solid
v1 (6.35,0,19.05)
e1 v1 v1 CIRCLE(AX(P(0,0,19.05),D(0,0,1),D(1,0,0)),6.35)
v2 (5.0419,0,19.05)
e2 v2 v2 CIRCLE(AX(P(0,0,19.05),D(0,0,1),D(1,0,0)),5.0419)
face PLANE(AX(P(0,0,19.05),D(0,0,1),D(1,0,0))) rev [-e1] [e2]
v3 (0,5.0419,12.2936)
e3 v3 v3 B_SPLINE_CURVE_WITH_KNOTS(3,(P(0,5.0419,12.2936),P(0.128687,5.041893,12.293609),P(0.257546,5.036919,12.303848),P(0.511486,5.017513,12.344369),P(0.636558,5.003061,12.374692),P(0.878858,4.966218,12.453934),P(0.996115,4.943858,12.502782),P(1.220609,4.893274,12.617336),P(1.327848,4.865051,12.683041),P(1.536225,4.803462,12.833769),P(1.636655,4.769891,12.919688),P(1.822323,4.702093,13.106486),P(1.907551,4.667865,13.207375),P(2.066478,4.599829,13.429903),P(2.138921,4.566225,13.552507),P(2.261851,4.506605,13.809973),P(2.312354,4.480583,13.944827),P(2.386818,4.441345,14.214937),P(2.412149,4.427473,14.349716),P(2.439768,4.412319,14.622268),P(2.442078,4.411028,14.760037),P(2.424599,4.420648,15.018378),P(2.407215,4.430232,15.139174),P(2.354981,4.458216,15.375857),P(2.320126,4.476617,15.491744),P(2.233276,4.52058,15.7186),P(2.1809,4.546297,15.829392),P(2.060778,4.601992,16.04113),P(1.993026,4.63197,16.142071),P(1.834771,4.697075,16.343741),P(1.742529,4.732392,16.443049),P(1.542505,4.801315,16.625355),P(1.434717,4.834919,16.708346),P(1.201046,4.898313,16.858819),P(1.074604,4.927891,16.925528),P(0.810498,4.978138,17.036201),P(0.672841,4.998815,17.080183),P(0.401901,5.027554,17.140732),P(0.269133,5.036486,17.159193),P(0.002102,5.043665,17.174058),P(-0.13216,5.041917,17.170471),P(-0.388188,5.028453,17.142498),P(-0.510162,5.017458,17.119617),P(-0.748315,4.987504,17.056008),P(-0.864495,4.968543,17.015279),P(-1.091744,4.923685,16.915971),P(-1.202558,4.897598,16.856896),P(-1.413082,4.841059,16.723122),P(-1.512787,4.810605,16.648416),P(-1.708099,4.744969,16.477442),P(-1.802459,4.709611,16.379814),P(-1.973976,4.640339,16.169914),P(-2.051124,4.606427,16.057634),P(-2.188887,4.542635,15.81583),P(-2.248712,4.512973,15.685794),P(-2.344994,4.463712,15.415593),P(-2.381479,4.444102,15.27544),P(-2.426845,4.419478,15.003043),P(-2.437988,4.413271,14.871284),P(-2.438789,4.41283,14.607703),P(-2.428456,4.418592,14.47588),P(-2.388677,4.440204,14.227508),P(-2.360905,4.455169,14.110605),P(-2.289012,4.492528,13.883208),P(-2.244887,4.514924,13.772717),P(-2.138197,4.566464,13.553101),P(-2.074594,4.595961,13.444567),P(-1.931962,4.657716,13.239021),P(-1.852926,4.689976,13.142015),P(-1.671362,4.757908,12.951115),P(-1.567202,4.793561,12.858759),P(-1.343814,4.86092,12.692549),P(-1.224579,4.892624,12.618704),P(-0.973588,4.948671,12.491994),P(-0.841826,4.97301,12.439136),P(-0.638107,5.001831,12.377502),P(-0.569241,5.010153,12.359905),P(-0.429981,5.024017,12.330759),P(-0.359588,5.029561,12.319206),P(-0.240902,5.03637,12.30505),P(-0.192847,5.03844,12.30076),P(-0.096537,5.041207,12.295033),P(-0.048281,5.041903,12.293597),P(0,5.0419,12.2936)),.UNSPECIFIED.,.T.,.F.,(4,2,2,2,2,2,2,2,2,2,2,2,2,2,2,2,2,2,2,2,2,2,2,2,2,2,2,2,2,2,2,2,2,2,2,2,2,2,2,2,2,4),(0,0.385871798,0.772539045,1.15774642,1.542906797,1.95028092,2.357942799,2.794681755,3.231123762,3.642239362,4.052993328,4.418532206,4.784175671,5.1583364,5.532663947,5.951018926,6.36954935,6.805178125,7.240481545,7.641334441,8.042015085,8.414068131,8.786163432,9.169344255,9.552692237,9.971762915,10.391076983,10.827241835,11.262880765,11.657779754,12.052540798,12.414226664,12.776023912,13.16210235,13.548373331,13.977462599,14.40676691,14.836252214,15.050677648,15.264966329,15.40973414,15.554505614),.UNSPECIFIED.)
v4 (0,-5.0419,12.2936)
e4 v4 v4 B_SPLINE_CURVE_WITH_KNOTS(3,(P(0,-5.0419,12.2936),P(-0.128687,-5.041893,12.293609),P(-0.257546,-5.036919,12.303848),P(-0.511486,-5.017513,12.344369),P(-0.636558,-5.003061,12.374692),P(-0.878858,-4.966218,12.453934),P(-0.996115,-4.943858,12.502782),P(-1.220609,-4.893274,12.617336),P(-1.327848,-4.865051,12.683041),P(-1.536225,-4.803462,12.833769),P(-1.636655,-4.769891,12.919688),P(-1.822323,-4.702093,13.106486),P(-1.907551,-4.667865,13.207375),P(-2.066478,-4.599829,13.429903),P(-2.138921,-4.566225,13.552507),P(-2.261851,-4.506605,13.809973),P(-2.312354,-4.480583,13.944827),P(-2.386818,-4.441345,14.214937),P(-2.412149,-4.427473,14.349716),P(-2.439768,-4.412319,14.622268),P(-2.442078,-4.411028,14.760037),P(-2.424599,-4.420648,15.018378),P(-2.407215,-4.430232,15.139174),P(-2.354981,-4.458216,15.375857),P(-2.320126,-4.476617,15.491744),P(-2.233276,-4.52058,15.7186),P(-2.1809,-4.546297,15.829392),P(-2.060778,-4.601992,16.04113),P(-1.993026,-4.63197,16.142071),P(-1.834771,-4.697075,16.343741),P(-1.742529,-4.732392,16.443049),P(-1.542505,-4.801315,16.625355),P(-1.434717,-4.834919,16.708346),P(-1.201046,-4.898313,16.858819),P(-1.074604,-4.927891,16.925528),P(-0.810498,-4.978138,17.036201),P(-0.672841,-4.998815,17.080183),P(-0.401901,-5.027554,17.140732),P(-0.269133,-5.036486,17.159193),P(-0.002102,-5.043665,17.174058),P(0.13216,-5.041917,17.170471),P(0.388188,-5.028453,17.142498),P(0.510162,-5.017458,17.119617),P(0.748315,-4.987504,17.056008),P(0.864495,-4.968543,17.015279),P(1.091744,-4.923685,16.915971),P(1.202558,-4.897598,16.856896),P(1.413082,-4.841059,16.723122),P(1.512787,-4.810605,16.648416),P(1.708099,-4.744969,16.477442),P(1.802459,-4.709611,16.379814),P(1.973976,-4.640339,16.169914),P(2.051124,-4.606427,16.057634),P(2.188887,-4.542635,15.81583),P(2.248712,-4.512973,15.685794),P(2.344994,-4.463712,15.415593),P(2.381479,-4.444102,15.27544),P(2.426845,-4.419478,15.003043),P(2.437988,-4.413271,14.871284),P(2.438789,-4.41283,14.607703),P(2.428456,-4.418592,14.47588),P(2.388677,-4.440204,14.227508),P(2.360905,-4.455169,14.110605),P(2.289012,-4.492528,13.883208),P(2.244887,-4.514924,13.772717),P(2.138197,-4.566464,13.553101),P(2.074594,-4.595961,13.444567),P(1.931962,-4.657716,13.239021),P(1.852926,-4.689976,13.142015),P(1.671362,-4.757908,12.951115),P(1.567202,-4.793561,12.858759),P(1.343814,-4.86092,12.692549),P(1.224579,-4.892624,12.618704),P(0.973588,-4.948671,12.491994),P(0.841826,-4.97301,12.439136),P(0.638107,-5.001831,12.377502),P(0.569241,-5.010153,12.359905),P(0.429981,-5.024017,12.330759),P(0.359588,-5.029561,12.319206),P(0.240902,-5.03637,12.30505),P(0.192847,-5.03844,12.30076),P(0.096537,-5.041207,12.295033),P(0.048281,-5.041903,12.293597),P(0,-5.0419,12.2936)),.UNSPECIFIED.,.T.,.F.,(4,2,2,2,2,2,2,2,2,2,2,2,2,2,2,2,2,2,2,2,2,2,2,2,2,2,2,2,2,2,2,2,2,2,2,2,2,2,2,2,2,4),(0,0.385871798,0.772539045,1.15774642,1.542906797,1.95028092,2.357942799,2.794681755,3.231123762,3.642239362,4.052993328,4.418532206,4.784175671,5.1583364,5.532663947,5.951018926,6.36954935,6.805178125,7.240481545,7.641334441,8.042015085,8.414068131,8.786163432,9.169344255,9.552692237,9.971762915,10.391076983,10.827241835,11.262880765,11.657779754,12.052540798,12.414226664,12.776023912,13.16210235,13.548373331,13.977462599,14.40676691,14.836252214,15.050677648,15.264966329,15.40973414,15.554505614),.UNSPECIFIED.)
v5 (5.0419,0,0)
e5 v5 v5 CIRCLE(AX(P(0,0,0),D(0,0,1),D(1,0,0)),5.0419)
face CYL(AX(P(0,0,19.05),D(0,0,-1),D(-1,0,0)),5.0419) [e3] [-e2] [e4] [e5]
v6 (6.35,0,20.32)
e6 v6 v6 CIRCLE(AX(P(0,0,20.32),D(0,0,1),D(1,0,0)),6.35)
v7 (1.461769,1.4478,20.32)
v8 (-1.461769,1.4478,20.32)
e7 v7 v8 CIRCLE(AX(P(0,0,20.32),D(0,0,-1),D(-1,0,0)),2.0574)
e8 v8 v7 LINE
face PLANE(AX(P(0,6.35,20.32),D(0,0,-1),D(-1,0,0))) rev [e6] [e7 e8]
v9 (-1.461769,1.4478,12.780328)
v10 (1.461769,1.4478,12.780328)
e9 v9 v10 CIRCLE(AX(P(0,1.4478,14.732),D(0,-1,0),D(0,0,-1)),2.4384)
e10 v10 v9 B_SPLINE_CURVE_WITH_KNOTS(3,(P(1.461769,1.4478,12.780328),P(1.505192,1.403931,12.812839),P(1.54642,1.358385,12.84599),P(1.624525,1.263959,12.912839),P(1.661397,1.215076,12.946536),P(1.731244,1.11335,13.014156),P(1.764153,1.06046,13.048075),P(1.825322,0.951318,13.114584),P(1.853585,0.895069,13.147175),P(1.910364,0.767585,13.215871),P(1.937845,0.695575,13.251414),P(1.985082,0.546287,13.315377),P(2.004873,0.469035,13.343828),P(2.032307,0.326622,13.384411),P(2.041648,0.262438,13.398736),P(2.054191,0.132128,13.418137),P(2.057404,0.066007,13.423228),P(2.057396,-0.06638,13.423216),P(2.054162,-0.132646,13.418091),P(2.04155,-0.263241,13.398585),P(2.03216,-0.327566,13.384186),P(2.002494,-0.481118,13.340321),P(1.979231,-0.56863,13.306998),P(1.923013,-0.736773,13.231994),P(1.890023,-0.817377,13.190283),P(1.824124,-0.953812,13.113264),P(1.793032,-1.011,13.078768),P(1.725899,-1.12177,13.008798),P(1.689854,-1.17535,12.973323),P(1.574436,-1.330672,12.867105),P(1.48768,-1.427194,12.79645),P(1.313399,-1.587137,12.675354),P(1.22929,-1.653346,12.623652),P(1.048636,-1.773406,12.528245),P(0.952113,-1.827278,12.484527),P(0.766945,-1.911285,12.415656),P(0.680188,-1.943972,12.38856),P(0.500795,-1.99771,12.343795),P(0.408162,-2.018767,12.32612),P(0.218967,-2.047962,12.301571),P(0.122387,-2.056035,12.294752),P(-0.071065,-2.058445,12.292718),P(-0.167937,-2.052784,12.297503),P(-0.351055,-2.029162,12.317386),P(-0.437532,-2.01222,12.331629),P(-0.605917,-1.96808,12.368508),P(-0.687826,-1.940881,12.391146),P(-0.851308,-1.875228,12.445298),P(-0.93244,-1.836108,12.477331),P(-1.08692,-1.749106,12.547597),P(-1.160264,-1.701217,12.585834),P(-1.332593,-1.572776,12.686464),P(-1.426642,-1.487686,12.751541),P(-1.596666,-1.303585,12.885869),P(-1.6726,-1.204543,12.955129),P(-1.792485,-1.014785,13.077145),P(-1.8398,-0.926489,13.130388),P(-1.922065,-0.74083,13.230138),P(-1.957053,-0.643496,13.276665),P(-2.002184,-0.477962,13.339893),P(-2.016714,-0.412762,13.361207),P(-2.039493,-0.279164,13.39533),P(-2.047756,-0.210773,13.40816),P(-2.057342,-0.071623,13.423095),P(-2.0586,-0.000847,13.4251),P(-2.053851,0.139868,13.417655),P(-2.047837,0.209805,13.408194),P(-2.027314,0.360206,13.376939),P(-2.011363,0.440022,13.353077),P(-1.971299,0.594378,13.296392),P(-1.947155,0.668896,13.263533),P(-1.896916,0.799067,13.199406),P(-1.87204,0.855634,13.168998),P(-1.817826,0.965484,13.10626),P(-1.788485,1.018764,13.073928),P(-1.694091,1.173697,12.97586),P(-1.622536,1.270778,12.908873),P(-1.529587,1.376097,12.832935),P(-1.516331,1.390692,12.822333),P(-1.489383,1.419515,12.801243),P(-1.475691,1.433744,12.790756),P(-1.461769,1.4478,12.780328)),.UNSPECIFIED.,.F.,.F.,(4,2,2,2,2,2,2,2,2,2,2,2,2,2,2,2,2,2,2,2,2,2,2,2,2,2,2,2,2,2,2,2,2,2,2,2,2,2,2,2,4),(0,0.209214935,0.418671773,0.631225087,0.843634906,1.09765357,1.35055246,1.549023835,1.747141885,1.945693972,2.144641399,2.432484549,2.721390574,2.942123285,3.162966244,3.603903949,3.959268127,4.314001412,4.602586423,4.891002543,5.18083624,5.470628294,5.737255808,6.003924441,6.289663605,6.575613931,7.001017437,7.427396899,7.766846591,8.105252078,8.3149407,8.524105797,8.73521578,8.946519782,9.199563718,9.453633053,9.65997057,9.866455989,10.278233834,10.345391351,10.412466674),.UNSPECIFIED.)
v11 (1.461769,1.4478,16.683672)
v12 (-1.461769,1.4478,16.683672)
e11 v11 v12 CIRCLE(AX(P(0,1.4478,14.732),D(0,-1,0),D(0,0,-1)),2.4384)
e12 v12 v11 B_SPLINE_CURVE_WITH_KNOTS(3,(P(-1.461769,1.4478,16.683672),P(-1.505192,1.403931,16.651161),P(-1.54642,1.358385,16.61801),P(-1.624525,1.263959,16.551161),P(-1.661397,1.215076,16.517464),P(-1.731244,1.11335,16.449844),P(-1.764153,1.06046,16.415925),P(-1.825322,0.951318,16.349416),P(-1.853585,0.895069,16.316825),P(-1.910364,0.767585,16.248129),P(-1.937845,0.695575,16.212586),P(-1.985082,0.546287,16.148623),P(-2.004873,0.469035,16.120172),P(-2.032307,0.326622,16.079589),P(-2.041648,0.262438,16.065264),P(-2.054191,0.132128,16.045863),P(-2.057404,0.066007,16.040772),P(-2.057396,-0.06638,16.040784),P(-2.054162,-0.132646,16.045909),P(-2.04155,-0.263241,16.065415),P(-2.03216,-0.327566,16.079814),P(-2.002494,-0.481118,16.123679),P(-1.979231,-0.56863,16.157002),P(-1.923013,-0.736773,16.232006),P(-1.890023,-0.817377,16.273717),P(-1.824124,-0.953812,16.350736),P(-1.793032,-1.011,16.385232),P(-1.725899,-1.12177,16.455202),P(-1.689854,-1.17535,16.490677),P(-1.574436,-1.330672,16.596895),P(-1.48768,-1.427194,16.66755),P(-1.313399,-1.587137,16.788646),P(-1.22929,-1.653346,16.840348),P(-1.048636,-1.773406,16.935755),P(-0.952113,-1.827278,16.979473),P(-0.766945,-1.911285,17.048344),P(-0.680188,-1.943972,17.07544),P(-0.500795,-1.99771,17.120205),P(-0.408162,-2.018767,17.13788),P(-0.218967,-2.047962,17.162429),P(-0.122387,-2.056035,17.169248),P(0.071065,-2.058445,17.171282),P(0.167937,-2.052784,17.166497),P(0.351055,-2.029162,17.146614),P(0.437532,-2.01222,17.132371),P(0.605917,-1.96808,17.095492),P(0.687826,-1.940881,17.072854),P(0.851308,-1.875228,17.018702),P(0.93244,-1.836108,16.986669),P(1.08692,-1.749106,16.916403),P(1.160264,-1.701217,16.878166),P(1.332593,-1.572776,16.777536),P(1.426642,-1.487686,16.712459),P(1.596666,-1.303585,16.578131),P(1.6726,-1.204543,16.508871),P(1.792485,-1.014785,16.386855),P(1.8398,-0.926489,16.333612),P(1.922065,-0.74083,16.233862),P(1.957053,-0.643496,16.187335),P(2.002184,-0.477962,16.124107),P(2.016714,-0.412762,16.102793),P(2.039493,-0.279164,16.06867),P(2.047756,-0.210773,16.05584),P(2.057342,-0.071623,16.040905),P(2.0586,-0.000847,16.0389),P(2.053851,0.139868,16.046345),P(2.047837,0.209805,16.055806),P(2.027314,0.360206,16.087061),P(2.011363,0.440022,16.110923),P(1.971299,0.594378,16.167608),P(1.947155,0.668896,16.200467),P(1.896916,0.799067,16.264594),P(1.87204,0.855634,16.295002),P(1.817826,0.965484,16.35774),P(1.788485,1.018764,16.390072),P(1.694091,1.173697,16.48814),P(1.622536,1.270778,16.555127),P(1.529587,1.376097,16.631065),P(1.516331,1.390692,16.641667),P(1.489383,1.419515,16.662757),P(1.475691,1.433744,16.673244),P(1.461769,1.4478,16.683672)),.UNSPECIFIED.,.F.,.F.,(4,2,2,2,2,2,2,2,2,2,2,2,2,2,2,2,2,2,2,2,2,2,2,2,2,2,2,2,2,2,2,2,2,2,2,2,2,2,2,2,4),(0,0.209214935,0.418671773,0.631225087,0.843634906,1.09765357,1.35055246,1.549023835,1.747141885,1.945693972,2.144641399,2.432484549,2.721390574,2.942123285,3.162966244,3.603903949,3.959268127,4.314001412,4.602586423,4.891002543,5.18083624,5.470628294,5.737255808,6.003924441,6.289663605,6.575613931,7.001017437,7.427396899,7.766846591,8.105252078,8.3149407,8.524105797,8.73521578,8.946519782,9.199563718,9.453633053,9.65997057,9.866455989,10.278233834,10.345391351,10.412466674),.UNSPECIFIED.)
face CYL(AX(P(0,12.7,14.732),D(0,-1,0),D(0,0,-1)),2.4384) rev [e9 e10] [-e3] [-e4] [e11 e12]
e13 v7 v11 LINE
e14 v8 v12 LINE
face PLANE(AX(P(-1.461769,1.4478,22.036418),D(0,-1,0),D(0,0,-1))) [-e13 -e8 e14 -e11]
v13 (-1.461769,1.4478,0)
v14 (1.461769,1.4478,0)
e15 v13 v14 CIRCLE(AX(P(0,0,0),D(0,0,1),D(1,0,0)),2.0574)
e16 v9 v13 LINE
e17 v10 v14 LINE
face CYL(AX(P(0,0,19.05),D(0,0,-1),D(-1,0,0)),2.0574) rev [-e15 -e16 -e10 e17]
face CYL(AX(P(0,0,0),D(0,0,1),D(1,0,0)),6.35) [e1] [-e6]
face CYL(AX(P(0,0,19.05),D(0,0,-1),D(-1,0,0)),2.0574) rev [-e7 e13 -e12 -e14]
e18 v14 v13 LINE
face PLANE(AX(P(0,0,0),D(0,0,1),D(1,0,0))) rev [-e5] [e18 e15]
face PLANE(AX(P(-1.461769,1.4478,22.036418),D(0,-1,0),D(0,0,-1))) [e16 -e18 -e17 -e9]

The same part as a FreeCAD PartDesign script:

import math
import FreeCAD as App
import Part
import Sketcher

V = App.Vector
Q = App.Units.Quantity

doc = App.newDocument("Part")
body = doc.addObject("PartDesign::Body", "Body")

# Sketch on XY plane
sketch1 = body.newObject("Sketcher::SketchObject", "Sketch")
sketch1.AttachmentSupport = (doc.getObject("XY_Plane"), [""])
sketch1.MapMode = "FlatFace"
sketch1.addGeometry([
    Part.Circle(V(0, 0, 0), V(0, 0, 1), 5),
    Part.Circle(V(0, 0, 0), V(0, 0, 1), 2.1),
], False)
sketch1.addConstraint([
    Sketcher.Constraint("Coincident", 0, 3, -1, 1),
    Sketcher.Constraint("Coincident", 1, 3, -1, 1),
    Sketcher.Constraint("Diameter", 0, Q("0.397 in")),
    Sketcher.Constraint("Diameter", 1, Q("0.162 in")),
])
pad1 = body.newObject("PartDesign::Pad", "Pad")
pad1.Profile = sketch1
pad1.Length = Q("0.75 in")

# Sketch on XY plane
sketch2 = body.newObject("Sketcher::SketchObject", "Sketch001")
sketch2.AttachmentSupport = (doc.getObject("XY_Plane"), [""])
sketch2.MapMode = "FlatFace"
sketch2.addGeometry([
    Part.LineSegment(V(1.5, 1.4, 0), V(-1.5, 1.4, 0)),
    Part.ArcOfCircle(Part.Circle(V(0, 0, 0), V(0, 0, 1), 2.1), math.radians(45), math.radians(135)),
], False)
sketch2.addConstraint([
    Sketcher.Constraint("Coincident", 0, 1, 1, 1),
    Sketcher.Constraint("Coincident", 1, 2, 0, 2),
    Sketcher.Constraint("Horizontal", 0),
    Sketcher.Constraint("Coincident", 1, 3, -1, 1),
    Sketcher.Constraint("Radius", 1, Q("0.081 in")),
    Sketcher.Constraint("DistanceX", 0, 2, 0, 1, Q("0.1151 in")),
])
pad2 = body.newObject("PartDesign::Pad", "Pad001")
pad2.Profile = sketch2
pad2.Length = Q("0.75 in")

# Sketch on XZ plane
sketch3 = body.newObject("Sketcher::SketchObject", "Sketch002")
sketch3.AttachmentSupport = (doc.getObject("XZ_Plane"), [""])
sketch3.MapMode = "FlatFace"
sketch3.addGeometry(Part.Circle(V(0, 14.7, 0), V(0, 0, 1), 2.4), False)
sketch3.addConstraint([
    Sketcher.Constraint("PointOnObject", 0, 3, -2),
    Sketcher.Constraint("Diameter", 0, Q("0.192 in")),
    Sketcher.Constraint("DistanceY", -1, 1, 0, 3, Q("0.58 in")),
])
pocket1 = body.newObject("PartDesign::Pocket", "Pocket")
pocket1.Profile = sketch3
pocket1.Length = Q("1 in")
pocket1.Midplane = True

# Sketch on YZ plane
sketch4 = body.newObject("Sketcher::SketchObject", "Sketch003")
sketch4.AttachmentSupport = (doc.getObject("YZ_Plane"), [""])
sketch4.MapMode = "FlatFace"
sketch4.addGeometry([
    Part.LineSegment(V(6.3, 20.3, 0), V(0, 20.3, 0)),
    Part.LineSegment(V(0, 20.3, 0), V(0, 19.1, 0)),
    Part.LineSegment(V(0, 19.1, 0), V(6.3, 19.1, 0)),
    Part.LineSegment(V(6.3, 19.1, 0), V(6.3, 20.3, 0)),
], False)
sketch4.addConstraint([
    Sketcher.Constraint("Coincident", 0, 2, 1, 1),
    Sketcher.Constraint("Coincident", 1, 2, 2, 1),
    Sketcher.Constraint("Coincident", 2, 2, 3, 1),
    Sketcher.Constraint("Coincident", 3, 2, 0, 1),
    Sketcher.Constraint("Horizontal", 0),
    Sketcher.Constraint("Vertical", 1),
    Sketcher.Constraint("Horizontal", 2),
    Sketcher.Constraint("Vertical", 3),
    Sketcher.Constraint("PointOnObject", 0, 2, -2),
    Sketcher.Constraint("DistanceX", 0, 2, 0, 1, Q("0.25 in")),
    Sketcher.Constraint("DistanceY", 1, 2, 1, 1, Q("0.05 in")),
    Sketcher.Constraint("DistanceY", -1, 1, 0, 2, Q("0.8 in")),
])
revolution = body.newObject("PartDesign::Revolution", "Revolution")
revolution.Profile = sketch4
revolution.ReferenceAxis = (sketch4, ["V_Axis"])
revolution.Angle = 360

# Sketch on XY plane
sketch5 = body.newObject("Sketcher::SketchObject", "Sketch004")
sketch5.AttachmentSupport = (doc.getObject("XY_Plane"), [""])
sketch5.MapMode = "FlatFace"
sketch5.AttachmentOffset = App.Placement(V(0, 0, 0.75 * 25.4), App.Rotation())
sketch5.addGeometry([
    Part.LineSegment(V(-1.5, 1.4, 0), V(1.5, 1.4, 0)),
    Part.ArcOfCircle(Part.Circle(V(0, 0, 0), V(0, 0, 1), 2.1), math.radians(135), math.radians(405)),
], False)
sketch5.addConstraint([
    Sketcher.Constraint("Coincident", 0, 1, 1, 1),
    Sketcher.Constraint("Coincident", 1, 2, 0, 2),
    Sketcher.Constraint("Horizontal", 0),
    Sketcher.Constraint("Coincident", 1, 3, -1, 1),
    Sketcher.Constraint("Radius", 1, Q("0.081 in")),
    Sketcher.Constraint("DistanceX", 0, 1, 0, 2, Q("0.1151 in")),
])
pocket2 = body.newObject("PartDesign::Pocket", "Pocket001")
pocket2.Profile = sketch5
pocket2.Type = "ThroughAll"
pocket2.Reversed = True

doc.recompute()
